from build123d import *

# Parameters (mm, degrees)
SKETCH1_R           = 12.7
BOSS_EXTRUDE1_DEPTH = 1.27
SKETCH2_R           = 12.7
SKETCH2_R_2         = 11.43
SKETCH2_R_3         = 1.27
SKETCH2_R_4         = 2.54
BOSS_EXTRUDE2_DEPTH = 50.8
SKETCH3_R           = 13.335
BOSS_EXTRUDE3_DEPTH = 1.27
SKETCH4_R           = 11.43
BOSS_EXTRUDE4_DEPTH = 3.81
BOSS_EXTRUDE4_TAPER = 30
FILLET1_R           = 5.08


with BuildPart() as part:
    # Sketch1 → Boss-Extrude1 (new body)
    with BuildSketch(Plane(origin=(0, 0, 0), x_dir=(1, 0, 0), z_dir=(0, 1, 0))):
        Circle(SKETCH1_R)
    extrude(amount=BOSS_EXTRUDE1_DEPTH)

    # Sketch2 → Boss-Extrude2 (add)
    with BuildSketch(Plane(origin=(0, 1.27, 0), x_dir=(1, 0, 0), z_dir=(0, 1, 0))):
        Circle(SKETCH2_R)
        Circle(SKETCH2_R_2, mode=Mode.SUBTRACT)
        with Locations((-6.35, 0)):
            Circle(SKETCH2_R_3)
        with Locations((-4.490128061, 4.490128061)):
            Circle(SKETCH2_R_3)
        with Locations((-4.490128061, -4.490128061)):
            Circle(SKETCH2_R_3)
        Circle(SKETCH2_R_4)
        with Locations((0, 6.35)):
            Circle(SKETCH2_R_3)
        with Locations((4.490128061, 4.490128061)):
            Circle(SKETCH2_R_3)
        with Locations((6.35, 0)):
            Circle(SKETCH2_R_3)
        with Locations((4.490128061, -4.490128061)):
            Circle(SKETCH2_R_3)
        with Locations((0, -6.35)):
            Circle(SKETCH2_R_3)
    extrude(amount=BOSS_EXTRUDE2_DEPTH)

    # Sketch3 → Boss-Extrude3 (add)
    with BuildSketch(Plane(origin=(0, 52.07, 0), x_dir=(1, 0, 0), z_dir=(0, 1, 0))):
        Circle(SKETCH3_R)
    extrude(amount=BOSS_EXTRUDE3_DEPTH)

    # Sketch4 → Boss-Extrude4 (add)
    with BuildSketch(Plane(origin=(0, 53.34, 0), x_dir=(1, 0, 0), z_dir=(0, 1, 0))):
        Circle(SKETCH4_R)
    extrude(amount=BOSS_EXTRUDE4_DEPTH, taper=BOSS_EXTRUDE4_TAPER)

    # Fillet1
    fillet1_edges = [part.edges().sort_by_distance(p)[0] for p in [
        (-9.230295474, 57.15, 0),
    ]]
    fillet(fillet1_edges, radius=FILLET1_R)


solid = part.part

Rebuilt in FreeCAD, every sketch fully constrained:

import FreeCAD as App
import Part
import Sketcher

V = App.Vector
Q = App.Units.Quantity


def edges_at(feature, points):
    """Names of the edges that pass closest to the given points."""
    edges = feature.Shape.Edges
    near = lambda p: min(range(len(edges)), key=lambda i: edges[i].distToShape(Part.Vertex(*p))[0])
    return sorted({f"Edge{near(p) + 1}" for p in points})

doc = App.newDocument("Part")
body = doc.addObject("PartDesign::Body", "Body")

# Sketch on XZ plane
sketch1 = body.newObject("Sketcher::SketchObject", "Sketch")
sketch1.AttachmentSupport = (doc.getObject("XZ_Plane"), [""])
sketch1.MapMode = "FlatFace"
sketch1.addGeometry(Part.Circle(V(0, 0, 0), V(0, 0, 1), 12.7), False)
sketch1.addConstraint(Sketcher.Constraint("Coincident", 0, 3, -1, 1))
sketch1.addConstraint(Sketcher.Constraint("Diameter", 0, Q("1 in")))
pad1 = body.newObject("PartDesign::Pad", "Pad")
pad1.Profile = sketch1
pad1.Length = Q("0.05 in")
pad1.Reversed = True

# Sketch on XZ plane
sketch2 = body.newObject("Sketcher::SketchObject", "Sketch001")
sketch2.AttachmentSupport = (doc.getObject("XZ_Plane"), [""])
sketch2.MapMode = "FlatFace"
sketch2.AttachmentOffset = App.Placement(V(0, 0, -0.05 * 25.4), App.Rotation())
sketch2.addGeometry(Part.Circle(V(0, 0, 0), V(0, 0, 1), 12.7), False)
sketch2.addGeometry(Part.Circle(V(0, 0, 0), V(0, 0, 1), 11.43), False)
sketch2.addGeometry(Part.Circle(V(-6.35, 0, 0), V(0, 0, 1), 1.27), False)
sketch2.addGeometry(Part.Circle(V(-4.490128, -4.490128, 0), V(0, 0, 1), 1.27), False)
sketch2.addGeometry(Part.Circle(V(-4.490128, 4.490128, 0), V(0, 0, 1), 1.27), False)
sketch2.addGeometry(Part.Circle(V(0, 0, 0), V(0, 0, 1), 2.54), False)
sketch2.addGeometry(Part.Circle(V(0, -6.35, 0), V(0, 0, 1), 1.27), False)
sketch2.addGeometry(Part.Circle(V(4.490128, -4.490128, 0), V(0, 0, 1), 1.27), False)
sketch2.addGeometry(Part.Circle(V(6.35, 0, 0), V(0, 0, 1), 1.27), False)
sketch2.addGeometry(Part.Circle(V(4.490128, 4.490128, 0), V(0, 0, 1), 1.27), False)
sketch2.addGeometry(Part.Circle(V(0, 6.35, 0), V(0, 0, 1), 1.27), False)
sketch2.addConstraint(Sketcher.Constraint("Coincident", 0, 3, -1, 1))
sketch2.addConstraint(Sketcher.Constraint("Coincident", 1, 3, -1, 1))
sketch2.addConstraint(Sketcher.Constraint("Coincident", 5, 3, -1, 1))
sketch2.addConstraint(Sketcher.Constraint("Equal", 2, 3))
sketch2.addConstraint(Sketcher.Constraint("Equal", 3, 4))
sketch2.addConstraint(Sketcher.Constraint("Equal", 4, 6))
sketch2.addConstraint(Sketcher.Constraint("Equal", 6, 7))
sketch2.addConstraint(Sketcher.Constraint("Equal", 7, 8))
sketch2.addConstraint(Sketcher.Constraint("Equal", 8, 9))
sketch2.addConstraint(Sketcher.Constraint("Equal", 9, 10))
sketch2.addConstraint(Sketcher.Constraint("Symmetric", 4, 3, 7, 3, -1, 1))
sketch2.addConstraint(Sketcher.Constraint("Symmetric", 2, 3, 8, 3, -1, 1))
sketch2.addConstraint(Sketcher.Constraint("Symmetric", 3, 3, 9, 3, -1, 1))
sketch2.addConstraint(Sketcher.Constraint("Symmetric", 6, 3, 10, 3, -1, 1))
sketch2.addConstraint(Sketcher.Constraint("Symmetric", 3, 3, 7, 3, -2))
sketch2.addConstraint(Sketcher.Constraint("PointOnObject", 2, 3, -1))
sketch2.addConstraint(Sketcher.Constraint("PointOnObject", 6, 3, -2))
sketch2.addConstraint(Sketcher.Constraint("Diameter", 0, Q("1 in")))
sketch2.addConstraint(Sketcher.Constraint("Diameter", 1, Q("0.9 in")))
sketch2.addConstraint(Sketcher.Constraint("Diameter", 2, Q("0.1 in")))
sketch2.addConstraint(Sketcher.Constraint("Diameter", 5, Q("0.2 in")))
sketch2.addConstraint(Sketcher.Constraint("DistanceX", 2, 3, -1, 1, Q("0.25 in")))
sketch2.addConstraint(Sketcher.Constraint("DistanceY", 6, 3, -1, 1, Q("0.25 in")))
sketch2.addConstraint(Sketcher.Constraint("DistanceX", 3, 3, -1, 1, Q("4.490128 mm")))
sketch2.addConstraint(Sketcher.Constraint("DistanceY", 3, 3, -1, 1, Q("4.490128 mm")))
pad2 = body.newObject("PartDesign::Pad", "Pad001")
pad2.Profile = sketch2
pad2.Length = Q("2 in")
pad2.Reversed = True

# Sketch on XZ plane
sketch3 = body.newObject("Sketcher::SketchObject", "Sketch002")
sketch3.AttachmentSupport = (doc.getObject("XZ_Plane"), [""])
sketch3.MapMode = "FlatFace"
sketch3.AttachmentOffset = App.Placement(V(0, 0, -2.05 * 25.4), App.Rotation())
sketch3.addGeometry(Part.Circle(V(0, 0, 0), V(0, 0, 1), 13.335), False)
sketch3.addConstraint(Sketcher.Constraint("Coincident", 0, 3, -1, 1))
sketch3.addConstraint(Sketcher.Constraint("Diameter", 0, Q("1.05 in")))
pad3 = body.newObject("PartDesign::Pad", "Pad002")
pad3.Profile = sketch3
pad3.Length = Q("0.05 in")
pad3.Reversed = True

# Sketch on XZ plane
sketch4 = body.newObject("Sketcher::SketchObject", "Sketch003")
sketch4.AttachmentSupport = (doc.getObject("XZ_Plane"), [""])
sketch4.MapMode = "FlatFace"
sketch4.AttachmentOffset = App.Placement(V(0, 0, -2.1 * 25.4), App.Rotation())
sketch4.addGeometry(Part.Circle(V(0, 0, 0), V(0, 0, 1), 11.43), False)
sketch4.addConstraint(Sketcher.Constraint("Coincident", 0, 3, -1, 1))
sketch4.addConstraint(Sketcher.Constraint("Diameter", 0, Q("0.9 in")))
pad4 = body.newObject("PartDesign::Pad", "Pad003")
pad4.Profile = sketch4
pad4.Length = Q("0.15 in")
pad4.Reversed = True
pad4.TaperAngle = -30
doc.recompute()

fillet = body.newObject("PartDesign::Fillet", "Fillet")
fillet.Base = (pad4, edges_at(pad4, [(-9.23, 57.15, 0)]))
fillet.Radius = Q("0.2 in")

doc.recompute()
